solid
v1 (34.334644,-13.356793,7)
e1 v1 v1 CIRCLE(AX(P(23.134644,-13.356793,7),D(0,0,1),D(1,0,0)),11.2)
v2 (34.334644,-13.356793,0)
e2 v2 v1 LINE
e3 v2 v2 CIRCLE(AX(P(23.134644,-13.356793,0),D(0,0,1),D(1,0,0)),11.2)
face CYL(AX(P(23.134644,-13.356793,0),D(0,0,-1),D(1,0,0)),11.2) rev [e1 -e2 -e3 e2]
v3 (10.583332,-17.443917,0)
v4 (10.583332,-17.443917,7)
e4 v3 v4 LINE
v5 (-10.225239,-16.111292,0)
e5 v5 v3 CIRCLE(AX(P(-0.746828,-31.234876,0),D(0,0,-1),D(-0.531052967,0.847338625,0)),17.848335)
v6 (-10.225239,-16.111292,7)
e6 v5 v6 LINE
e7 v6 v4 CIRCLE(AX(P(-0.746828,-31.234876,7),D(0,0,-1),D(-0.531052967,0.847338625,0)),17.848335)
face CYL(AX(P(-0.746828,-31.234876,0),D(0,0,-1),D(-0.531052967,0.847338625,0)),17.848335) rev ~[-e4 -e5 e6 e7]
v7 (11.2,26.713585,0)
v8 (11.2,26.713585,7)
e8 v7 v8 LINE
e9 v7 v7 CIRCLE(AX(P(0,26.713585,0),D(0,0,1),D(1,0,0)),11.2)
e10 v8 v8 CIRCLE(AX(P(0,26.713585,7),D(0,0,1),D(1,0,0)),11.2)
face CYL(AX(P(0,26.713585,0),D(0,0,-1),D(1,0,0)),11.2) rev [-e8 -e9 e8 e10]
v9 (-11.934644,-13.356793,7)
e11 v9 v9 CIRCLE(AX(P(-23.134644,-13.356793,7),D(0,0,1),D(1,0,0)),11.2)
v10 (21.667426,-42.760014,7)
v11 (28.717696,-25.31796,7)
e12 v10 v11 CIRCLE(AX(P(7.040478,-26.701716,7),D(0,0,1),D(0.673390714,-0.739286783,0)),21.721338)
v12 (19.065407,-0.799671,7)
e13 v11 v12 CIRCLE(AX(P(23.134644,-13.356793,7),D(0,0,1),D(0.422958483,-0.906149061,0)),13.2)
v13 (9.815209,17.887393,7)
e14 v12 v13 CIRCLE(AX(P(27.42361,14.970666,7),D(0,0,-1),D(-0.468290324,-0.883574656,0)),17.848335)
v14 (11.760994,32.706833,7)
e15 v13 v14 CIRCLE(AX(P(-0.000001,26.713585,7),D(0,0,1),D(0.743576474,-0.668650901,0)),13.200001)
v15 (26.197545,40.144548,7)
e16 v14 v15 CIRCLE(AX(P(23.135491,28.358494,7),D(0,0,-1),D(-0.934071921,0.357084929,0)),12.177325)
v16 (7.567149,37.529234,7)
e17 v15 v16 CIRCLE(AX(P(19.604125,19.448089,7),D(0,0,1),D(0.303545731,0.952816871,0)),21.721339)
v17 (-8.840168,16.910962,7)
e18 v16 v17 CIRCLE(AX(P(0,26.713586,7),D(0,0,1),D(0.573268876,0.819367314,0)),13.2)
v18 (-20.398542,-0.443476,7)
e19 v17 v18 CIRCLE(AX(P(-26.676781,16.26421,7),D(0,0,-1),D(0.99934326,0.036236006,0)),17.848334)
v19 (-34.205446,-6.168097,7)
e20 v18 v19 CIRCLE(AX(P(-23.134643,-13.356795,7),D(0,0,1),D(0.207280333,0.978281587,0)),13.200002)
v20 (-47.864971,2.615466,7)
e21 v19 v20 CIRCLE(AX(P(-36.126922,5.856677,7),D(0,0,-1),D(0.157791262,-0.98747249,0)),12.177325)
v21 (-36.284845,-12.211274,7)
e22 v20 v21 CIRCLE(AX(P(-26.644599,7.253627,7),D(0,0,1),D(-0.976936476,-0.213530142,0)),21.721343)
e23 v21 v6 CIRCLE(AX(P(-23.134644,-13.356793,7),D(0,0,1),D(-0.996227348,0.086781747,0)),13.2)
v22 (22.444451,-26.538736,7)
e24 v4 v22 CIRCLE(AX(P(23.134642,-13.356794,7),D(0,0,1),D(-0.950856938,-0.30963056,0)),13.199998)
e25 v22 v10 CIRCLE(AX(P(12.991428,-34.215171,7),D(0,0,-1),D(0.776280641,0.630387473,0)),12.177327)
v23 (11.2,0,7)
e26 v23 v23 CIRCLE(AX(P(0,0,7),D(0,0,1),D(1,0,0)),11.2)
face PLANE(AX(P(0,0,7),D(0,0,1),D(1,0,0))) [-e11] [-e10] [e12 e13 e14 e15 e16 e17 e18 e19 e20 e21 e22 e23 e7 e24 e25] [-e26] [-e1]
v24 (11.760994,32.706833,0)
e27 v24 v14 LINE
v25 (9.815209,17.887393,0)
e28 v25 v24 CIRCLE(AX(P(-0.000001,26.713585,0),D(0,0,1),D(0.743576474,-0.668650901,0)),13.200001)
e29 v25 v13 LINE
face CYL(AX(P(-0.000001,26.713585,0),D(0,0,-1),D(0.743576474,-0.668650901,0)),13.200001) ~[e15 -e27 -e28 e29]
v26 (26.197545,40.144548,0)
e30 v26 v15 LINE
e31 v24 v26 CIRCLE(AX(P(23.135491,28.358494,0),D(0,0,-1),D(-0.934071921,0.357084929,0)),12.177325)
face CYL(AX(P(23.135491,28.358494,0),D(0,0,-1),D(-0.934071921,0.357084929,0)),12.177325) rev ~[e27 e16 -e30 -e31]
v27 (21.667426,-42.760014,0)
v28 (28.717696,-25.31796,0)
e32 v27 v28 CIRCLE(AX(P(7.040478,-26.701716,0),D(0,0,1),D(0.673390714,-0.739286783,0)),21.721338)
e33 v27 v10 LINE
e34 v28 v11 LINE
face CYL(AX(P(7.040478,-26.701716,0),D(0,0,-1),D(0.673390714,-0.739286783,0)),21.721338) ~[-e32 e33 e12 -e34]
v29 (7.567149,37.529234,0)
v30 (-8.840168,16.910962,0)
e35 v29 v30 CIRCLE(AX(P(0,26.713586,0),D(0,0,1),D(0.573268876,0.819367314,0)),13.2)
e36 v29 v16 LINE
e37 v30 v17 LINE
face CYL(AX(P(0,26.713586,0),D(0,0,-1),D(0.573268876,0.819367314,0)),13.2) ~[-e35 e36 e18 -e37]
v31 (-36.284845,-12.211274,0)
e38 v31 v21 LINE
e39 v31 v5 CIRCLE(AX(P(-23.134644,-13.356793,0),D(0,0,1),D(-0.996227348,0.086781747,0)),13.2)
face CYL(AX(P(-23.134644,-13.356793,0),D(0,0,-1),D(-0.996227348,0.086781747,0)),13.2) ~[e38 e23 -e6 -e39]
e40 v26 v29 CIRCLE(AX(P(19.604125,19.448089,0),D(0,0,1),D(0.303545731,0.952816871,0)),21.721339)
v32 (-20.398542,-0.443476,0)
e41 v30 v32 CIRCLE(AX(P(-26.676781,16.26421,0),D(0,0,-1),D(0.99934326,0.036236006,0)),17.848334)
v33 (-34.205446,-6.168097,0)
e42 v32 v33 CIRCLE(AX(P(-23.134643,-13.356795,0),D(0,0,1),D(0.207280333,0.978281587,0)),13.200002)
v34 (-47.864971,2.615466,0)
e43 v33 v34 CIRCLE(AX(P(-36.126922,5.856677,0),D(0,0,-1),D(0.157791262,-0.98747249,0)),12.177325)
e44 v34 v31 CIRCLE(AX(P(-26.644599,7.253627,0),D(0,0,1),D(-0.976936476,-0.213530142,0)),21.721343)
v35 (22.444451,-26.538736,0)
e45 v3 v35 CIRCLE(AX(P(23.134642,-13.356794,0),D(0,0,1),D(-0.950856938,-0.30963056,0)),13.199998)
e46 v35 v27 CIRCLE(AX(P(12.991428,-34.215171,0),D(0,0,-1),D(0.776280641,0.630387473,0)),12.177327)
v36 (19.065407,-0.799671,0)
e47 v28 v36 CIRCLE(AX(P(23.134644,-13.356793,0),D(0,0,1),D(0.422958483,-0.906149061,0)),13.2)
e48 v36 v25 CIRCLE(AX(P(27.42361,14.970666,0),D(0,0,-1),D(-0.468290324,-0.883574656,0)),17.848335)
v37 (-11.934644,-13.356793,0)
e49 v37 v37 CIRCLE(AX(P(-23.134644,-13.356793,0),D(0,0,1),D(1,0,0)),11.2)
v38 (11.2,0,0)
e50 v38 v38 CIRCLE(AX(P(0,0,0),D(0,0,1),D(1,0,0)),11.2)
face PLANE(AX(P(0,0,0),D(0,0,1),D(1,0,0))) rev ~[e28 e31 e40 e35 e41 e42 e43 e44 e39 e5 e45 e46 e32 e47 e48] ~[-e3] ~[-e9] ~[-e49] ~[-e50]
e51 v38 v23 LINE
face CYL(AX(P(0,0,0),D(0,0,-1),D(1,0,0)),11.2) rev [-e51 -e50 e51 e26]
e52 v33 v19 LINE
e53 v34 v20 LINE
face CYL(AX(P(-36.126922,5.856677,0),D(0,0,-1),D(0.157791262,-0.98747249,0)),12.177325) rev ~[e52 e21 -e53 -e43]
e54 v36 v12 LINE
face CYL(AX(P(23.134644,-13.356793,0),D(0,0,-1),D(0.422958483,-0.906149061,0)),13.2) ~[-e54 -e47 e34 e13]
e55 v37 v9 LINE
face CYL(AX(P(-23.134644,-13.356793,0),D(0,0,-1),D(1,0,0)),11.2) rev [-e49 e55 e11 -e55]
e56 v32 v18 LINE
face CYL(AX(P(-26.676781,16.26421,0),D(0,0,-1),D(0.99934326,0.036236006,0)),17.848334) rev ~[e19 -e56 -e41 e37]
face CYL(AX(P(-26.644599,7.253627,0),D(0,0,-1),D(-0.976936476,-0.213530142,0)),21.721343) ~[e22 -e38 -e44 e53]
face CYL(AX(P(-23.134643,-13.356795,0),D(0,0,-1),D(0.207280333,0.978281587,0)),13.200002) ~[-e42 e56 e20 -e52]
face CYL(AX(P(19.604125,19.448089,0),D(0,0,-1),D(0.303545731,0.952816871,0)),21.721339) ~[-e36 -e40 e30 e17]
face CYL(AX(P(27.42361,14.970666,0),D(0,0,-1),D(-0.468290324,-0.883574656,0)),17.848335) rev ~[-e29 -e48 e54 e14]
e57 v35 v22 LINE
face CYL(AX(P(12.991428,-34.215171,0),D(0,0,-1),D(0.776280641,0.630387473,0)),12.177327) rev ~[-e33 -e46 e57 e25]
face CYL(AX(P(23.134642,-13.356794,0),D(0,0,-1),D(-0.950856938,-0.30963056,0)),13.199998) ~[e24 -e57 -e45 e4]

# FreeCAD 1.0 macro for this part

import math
import FreeCAD as App
import Part
import Sketcher
from FreeCAD import Vector

doc = App.newDocument("Part")
body = doc.addObject("PartDesign::Body", "Body")

sketch1 = doc.addObject("Sketcher::SketchObject", "Sketch")
body.addObject(sketch1)
sketch1.AttachmentSupport = (doc.XY_Plane, [""])
sketch1.MapMode = "FlatFace"
sketch1.addGeometry(Part.ArcOfCircle(Part.Circle(Vector(27.42361, 14.970666, 0), Vector(0, 0, 1), 17.848335), math.radians(170.594694), math.radians(242.076625)), False)
sketch1.addGeometry(Part.ArcOfCircle(Part.Circle(Vector(-0.000001, 26.713585, 0), Vector(0, 0, 1), 13.200001), math.radians(-41.963026), math.radians(27.00279)), False)
sketch1.addGeometry(Part.ArcOfCircle(Part.Circle(Vector(23.135491, 28.358494, 0), Vector(0, 0, 1), 12.177325), math.radians(75.436351), math.radians(159.078721)), False)
sketch1.addGeometry(Part.ArcOfCircle(Part.Circle(Vector(19.604125, 19.448089, 0), Vector(0, 0, 1), 21.721339), math.radians(72.329307), math.radians(123.652493)), False)
sketch1.addGeometry(Part.ArcOfCircle(Part.Circle(Vector(0, 26.713586, 0), Vector(0, 0, 1), 13.2), math.radians(55.02151), math.radians(227.955337)), False)
sketch1.addGeometry(Part.ArcOfCircle(Part.Circle(Vector(-26.676781, 16.26421, 0), Vector(0, 0, 1), 17.848334), math.radians(-69.405311), math.radians(2.076625)), False)
sketch1.addGeometry(Part.ArcOfCircle(Part.Circle(Vector(-23.134643, -13.356795, 0), Vector(0, 0, 1), 13.200002), math.radians(78.03698), math.radians(147.002786)), False)
sketch1.addGeometry(Part.ArcOfCircle(Part.Circle(Vector(-36.126922, 5.856677, 0), Vector(0, 0, 1), 12.177325), math.radians(-164.56365), math.radians(-80.921284)), False)
sketch1.addGeometry(Part.ArcOfCircle(Part.Circle(Vector(-26.644599, 7.253627, 0), Vector(0, 0, 1), 21.721343), math.radians(-167.670692), math.radians(-116.347513)), False)
sketch1.addGeometry(Part.ArcOfCircle(Part.Circle(Vector(-23.134644, -13.356793, 0), Vector(0, 0, 1), 13.2), math.radians(175.02151), math.radians(347.955334)), False)
sketch1.addGeometry(Part.ArcOfCircle(Part.Circle(Vector(-0.746828, -31.234876, 0), Vector(0, 0, 1), 17.848335), math.radians(50.594695), math.radians(122.076627)), False)
sketch1.addGeometry(Part.ArcOfCircle(Part.Circle(Vector(23.134642, -13.356794, 0), Vector(0, 0, 1), 13.199998), math.radians(-161.963032), math.radians(-92.997203)), False)
sketch1.addGeometry(Part.ArcOfCircle(Part.Circle(Vector(12.991428, -34.215171, 0), Vector(0, 0, 1), 12.177327), math.radians(-44.563641), math.radians(39.078715)), False)
sketch1.addGeometry(Part.ArcOfCircle(Part.Circle(Vector(7.040478, -26.701716, 0), Vector(0, 0, 1), 21.721338), math.radians(-47.670696), math.radians(3.652495)), False)
sketch1.addGeometry(Part.ArcOfCircle(Part.Circle(Vector(23.134644, -13.356793, 0), Vector(0, 0, 1), 13.2), math.radians(-64.97849), math.radians(107.955338)), False)
sketch1.addGeometry(Part.Circle(Vector(-23.134644, -13.356793, 0), Vector(0, 0, 1), 11.2), False)
sketch1.addGeometry(Part.Circle(Vector(23.134644, -13.356793, 0), Vector(0, 0, 1), 11.2), False)
sketch1.addGeometry(Part.Circle(Vector(0, 0, 0), Vector(0, 0, 1), 11.2), False)
sketch1.addGeometry(Part.Circle(Vector(0, 26.713585, 0), Vector(0, 0, 1), 11.2), False)
sketch1.addConstraint(Sketcher.Constraint("Coincident", 0, 1, 1, 1))
sketch1.addConstraint(Sketcher.Constraint("Coincident", 1, 2, 2, 2))
sketch1.addConstraint(Sketcher.Constraint("Coincident", 2, 1, 3, 1))
sketch1.addConstraint(Sketcher.Constraint("Coincident", 3, 2, 4, 1))
sketch1.addConstraint(Sketcher.Constraint("Coincident", 4, 2, 5, 2))
sketch1.addConstraint(Sketcher.Constraint("Coincident", 5, 1, 6, 1))
sketch1.addConstraint(Sketcher.Constraint("Coincident", 6, 2, 7, 2))
sketch1.addConstraint(Sketcher.Constraint("Coincident", 7, 1, 8, 1))
sketch1.addConstraint(Sketcher.Constraint("Coincident", 8, 2, 9, 1))
sketch1.addConstraint(Sketcher.Constraint("Coincident", 9, 2, 10, 2))
sketch1.addConstraint(Sketcher.Constraint("Coincident", 10, 1, 11, 1))
sketch1.addConstraint(Sketcher.Constraint("Coincident", 11, 2, 12, 2))
sketch1.addConstraint(Sketcher.Constraint("Coincident", 12, 1, 13, 1))
sketch1.addConstraint(Sketcher.Constraint("Coincident", 13, 2, 14, 1))
sketch1.addConstraint(Sketcher.Constraint("Coincident", 14, 2, 0, 2))
sketch1.addConstraint(Sketcher.Constraint("Coincident", 17, 3, -1, 1))
sketch1.addConstraint(Sketcher.Constraint("Coincident", 4, 3, 1, 3))
sketch1.addConstraint(Sketcher.Constraint("Coincident", 9, 3, 6, 3))
sketch1.addConstraint(Sketcher.Constraint("Coincident", 14, 3, 11, 3))
sketch1.addConstraint(Sketcher.Constraint("Coincident", 15, 3, 6, 3))
sketch1.addConstraint(Sketcher.Constraint("Coincident", 16, 3, 11, 3))
sketch1.addConstraint(Sketcher.Constraint("Coincident", 18, 3, 1, 3))
sketch1.addConstraint(Sketcher.Constraint("PointOnObject", 1, 3, -2))
sketch1.addConstraint(Sketcher.Constraint("Diameter", 15, 22.4))
sketch1.addConstraint(Sketcher.Constraint("Diameter", 16, 22.4))
sketch1.addConstraint(Sketcher.Constraint("Diameter", 17, 22.4))
sketch1.addConstraint(Sketcher.Constraint("Diameter", 18, 22.4))
sketch1.addConstraint(Sketcher.Constraint("Radius", 1, 13.200001))
sketch1.addConstraint(Sketcher.Constraint("Radius", 4, 13.2))
sketch1.addConstraint(Sketcher.Constraint("Radius", 9, 13.2))
sketch1.addConstraint(Sketcher.Constraint("Radius", 11, 13.199998))
sketch1.addConstraint(Sketcher.Constraint("Radius", 14, 13.2))
sketch1.addConstraint(Sketcher.Constraint("Radius", 3, 21.721339))
sketch1.addConstraint(Sketcher.Constraint("Radius", 13, 21.721338))
sketch1.addConstraint(Sketcher.Constraint("Radius", 0, 17.848335))
sketch1.addConstraint(Sketcher.Constraint("Radius", 2, 12.177325))
sketch1.addConstraint(Sketcher.Constraint("Radius", 5, 17.848334))
sketch1.addConstraint(Sketcher.Constraint("Radius", 6, 13.200002))
sketch1.addConstraint(Sketcher.Constraint("Radius", 7, 12.177325))
sketch1.addConstraint(Sketcher.Constraint("Radius", 8, 21.721343))
sketch1.addConstraint(Sketcher.Constraint("Radius", 10, 17.848335))
sketch1.addConstraint(Sketcher.Constraint("Radius", 12, 12.177327))
sketch1.addConstraint(Sketcher.Constraint("DistanceX", 12, 3, 12, 1, 8.675998))
sketch1.addConstraint(Sketcher.Constraint("DistanceX", 8, 3, -1, 1, 26.644599))
sketch1.addConstraint(Sketcher.Constraint("DistanceY", 0, 1, 2, 3, 10.471101))
sketch1.addConstraint(Sketcher.Constraint("DistanceY", 1, 2, 3, 2, 4.822401))
sketch1.addConstraint(Sketcher.Constraint("DistanceX", 15, 3, 5, 1, 2.736102))
sketch1.addConstraint(Sketcher.Constraint("DistanceY", 6, 3, 6, 2, 7.188698))
sketch1.addConstraint(Sketcher.Constraint("DistanceX", 8, 2, 6, 2, 2.079399))
sketch1.addConstraint(Sketcher.Constraint("DistanceY", 9, 2, 9, 3, 2.754499))
sketch1.addConstraint(Sketcher.Constraint("DistanceY", 13, 3, 10, 1, 9.257799))
sketch1.addConstraint(Sketcher.Constraint("DistanceY", 12, 1, 13, 3, 16.058298))
sketch1.addConstraint(Sketcher.Constraint("DistanceX", -1, 1, 0, 3, 27.42361))
sketch1.addConstraint(Sketcher.Constraint("DistanceX", -1, 1, 2, 3, 23.135491))
sketch1.addConstraint(Sketcher.Constraint("DistanceY", -1, 1, 3, 3, 19.448089))
sketch1.addConstraint(Sketcher.Constraint("DistanceX", 5, 3, -1, 1, 26.676781))
sketch1.addConstraint(Sketcher.Constraint("DistanceY", -1, 1, 5, 3, 16.26421))
sketch1.addConstraint(Sketcher.Constraint("DistanceX", 7, 3, -1, 1, 36.126922))
sketch1.addConstraint(Sketcher.Constraint("DistanceX", -1, 1, 11, 3, 23.134642))
sketch1.addConstraint(Sketcher.Constraint("DistanceY", 12, 3, -1, 1, 34.215171))
sketch1.addConstraint(Sketcher.Constraint("DistanceX", -1, 1, 13, 3, 7.040478))
sketch1.addConstraint(Sketcher.Constraint("DistanceX", -1, 1, 0, 1, 9.815209))
sketch1.addConstraint(Sketcher.Constraint("DistanceY", -1, 1, 4, 2, 16.910962))
sketch1.addConstraint(Sketcher.Constraint("DistanceX", 7, 1, -1, 1, 47.864971))
sketch1.addConstraint(Sketcher.Constraint("DistanceX", -1, 1, 11, 2, 22.444451))
pad1 = doc.addObject("PartDesign::Pad", "Pad")
body.addObject(pad1)
pad1.Profile = sketch1
pad1.Length = 7

doc.recompute()
